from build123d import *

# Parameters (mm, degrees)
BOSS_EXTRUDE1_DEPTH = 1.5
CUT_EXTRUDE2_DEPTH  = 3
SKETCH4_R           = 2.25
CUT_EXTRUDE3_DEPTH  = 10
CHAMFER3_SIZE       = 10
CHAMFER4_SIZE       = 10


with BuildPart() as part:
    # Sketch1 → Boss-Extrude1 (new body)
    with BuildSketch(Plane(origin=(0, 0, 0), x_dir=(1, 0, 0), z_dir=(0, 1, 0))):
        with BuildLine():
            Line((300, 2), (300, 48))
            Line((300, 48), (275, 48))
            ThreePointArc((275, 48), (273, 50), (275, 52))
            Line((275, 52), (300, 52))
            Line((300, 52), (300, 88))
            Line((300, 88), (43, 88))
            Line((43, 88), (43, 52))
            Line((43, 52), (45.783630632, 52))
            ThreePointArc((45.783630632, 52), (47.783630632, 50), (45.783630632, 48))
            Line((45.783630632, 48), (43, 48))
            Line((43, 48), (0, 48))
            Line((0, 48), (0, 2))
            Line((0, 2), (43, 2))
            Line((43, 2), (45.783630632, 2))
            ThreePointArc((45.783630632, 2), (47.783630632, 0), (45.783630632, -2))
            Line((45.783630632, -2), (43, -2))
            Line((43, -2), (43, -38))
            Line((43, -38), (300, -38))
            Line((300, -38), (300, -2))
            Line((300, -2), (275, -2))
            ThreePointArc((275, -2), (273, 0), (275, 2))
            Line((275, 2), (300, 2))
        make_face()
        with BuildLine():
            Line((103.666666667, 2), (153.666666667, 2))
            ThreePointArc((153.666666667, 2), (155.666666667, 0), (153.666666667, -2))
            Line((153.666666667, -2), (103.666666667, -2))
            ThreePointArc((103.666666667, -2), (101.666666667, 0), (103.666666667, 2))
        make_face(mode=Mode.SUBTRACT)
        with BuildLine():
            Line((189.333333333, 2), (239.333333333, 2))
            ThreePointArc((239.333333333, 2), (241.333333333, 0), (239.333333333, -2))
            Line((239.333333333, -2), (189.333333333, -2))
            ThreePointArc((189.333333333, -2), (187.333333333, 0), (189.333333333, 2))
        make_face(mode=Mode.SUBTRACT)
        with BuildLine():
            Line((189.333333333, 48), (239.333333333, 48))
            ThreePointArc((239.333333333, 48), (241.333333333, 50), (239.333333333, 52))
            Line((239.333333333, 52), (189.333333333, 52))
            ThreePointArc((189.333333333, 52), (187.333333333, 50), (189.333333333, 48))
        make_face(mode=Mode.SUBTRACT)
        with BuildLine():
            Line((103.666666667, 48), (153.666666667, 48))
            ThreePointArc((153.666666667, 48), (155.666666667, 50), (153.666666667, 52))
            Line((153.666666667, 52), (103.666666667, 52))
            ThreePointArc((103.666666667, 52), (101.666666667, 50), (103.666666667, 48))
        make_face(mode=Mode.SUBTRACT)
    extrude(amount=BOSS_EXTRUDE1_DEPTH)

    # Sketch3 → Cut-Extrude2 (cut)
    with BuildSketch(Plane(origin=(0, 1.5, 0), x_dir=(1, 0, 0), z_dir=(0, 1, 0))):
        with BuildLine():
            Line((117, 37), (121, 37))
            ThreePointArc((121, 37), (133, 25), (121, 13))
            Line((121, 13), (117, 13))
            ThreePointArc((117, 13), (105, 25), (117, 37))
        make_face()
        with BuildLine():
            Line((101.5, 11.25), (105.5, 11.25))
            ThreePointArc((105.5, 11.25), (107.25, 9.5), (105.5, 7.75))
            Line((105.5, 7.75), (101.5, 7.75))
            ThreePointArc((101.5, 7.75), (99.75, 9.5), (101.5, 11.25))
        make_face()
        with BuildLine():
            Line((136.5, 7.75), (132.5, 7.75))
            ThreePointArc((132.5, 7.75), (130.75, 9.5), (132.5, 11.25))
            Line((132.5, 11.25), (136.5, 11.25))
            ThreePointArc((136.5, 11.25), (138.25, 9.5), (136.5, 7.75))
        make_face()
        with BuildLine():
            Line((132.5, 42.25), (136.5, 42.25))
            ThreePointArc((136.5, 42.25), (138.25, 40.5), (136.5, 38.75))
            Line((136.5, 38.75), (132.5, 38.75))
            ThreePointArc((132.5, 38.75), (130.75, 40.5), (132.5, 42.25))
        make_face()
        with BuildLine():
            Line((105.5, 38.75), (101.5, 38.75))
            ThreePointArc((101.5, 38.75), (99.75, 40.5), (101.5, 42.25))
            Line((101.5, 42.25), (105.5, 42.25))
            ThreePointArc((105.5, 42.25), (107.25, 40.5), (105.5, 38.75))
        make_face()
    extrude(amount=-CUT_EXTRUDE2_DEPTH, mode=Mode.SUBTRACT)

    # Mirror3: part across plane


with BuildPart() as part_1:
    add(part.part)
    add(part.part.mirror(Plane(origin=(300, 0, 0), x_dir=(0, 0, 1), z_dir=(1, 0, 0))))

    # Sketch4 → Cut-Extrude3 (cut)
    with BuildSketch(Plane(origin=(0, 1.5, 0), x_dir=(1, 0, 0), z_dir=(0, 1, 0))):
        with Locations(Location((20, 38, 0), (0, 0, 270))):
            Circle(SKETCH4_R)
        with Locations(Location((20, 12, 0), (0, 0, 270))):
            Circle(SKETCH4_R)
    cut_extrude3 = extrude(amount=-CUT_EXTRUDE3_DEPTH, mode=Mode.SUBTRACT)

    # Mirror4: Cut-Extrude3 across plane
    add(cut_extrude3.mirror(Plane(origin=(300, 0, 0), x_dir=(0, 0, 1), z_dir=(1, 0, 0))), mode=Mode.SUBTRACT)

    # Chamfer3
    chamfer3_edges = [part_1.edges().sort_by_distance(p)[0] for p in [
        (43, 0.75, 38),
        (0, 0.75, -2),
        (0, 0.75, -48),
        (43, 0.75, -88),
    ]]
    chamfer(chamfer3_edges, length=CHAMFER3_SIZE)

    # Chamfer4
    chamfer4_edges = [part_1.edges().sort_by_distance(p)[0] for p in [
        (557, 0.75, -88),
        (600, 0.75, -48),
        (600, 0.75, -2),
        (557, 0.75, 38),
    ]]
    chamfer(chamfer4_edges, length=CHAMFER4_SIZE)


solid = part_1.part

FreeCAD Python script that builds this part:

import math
import FreeCAD as App
import Part
import Sketcher
from FreeCAD import Vector


def edges_at(feature, points):
    """Names of the edges that pass closest to the given points."""
    edges = feature.Shape.Edges
    near = lambda p: min(range(len(edges)), key=lambda i: edges[i].distToShape(Part.Vertex(*p))[0])
    return sorted({f"Edge{near(p) + 1}" for p in points})

doc = App.newDocument("Part")
params = doc.addObject("Spreadsheet::Sheet", "Params")
for row, (alias, value) in enumerate([
    ("sketch1_radius", "2 mm"),
    ("sketch1_width", "25 mm"),
    ("sketch1_width2", "257 mm"),
    ("sketch1_width3", "50 mm"),
    ("sketch1_height", "46 mm"),
    ("pad1_length", "1.5 mm"),
    ("sketch2_radius", "12 mm"),
    ("sketch2_width", "4 mm"),
    ("sketch2_radius2", "1.75 mm"),
    ("pocket1_length", "3 mm"),
    ("sketch3_diameter", "4.5 mm"),
    ("pocket2_length", "10 mm"),
    ("chamfer_size", "10 mm"),
    ("chamfer2_size", "10 mm"),
], start=1):
    params.set(f"A{row}", alias)
    params.set(f"B{row}", "=" + value)
    params.setAlias(f"B{row}", alias)

body = doc.addObject("PartDesign::Body", "Body")

# Sketch on XZ plane
sketch1 = body.newObject("Sketcher::SketchObject", "Sketch")
sketch1.AttachmentSupport = (doc.getObject("XZ_Plane"), [""])
sketch1.MapMode = "FlatFace"
sketch1.addGeometry([
    Part.LineSegment(Vector(300, -2, 0), Vector(300, -48, 0)),  # 0
    Part.LineSegment(Vector(300, -48, 0), Vector(275, -48, 0)),  # 1
    Part.ArcOfCircle(Part.Circle(Vector(275, -50, 0), Vector(0, 0, 1), 2), math.radians(90), math.radians(270)),  # 2
    Part.LineSegment(Vector(275, -52, 0), Vector(300, -52, 0)),  # 3
    Part.LineSegment(Vector(300, -52, 0), Vector(300, -88, 0)),  # 4
    Part.LineSegment(Vector(300, -88, 0), Vector(43, -88, 0)),  # 5
    Part.LineSegment(Vector(43, -88, 0), Vector(43, -52, 0)),  # 6
    Part.LineSegment(Vector(43, -52, 0), Vector(45.8, -52, 0)),  # 7
    Part.ArcOfCircle(Part.Circle(Vector(45.8, -50, 0), Vector(0, 0, 1), 2), math.radians(-90), math.radians(90)),  # 8
    Part.LineSegment(Vector(45.8, -48, 0), Vector(0, -48, 0)),  # 9
    Part.LineSegment(Vector(0, -48, 0), Vector(0, -2, 0)),  # 10
    Part.LineSegment(Vector(0, -2, 0), Vector(45.8, -2, 0)),  # 11
    Part.ArcOfCircle(Part.Circle(Vector(45.8, 0, 0), Vector(0, 0, 1), 2), math.radians(-90), math.radians(90)),  # 12
    Part.LineSegment(Vector(45.8, 2, 0), Vector(43, 2, 0)),  # 13
    Part.LineSegment(Vector(43, 2, 0), Vector(43, 38, 0)),  # 14
    Part.LineSegment(Vector(43, 38, 0), Vector(300, 38, 0)),  # 15
    Part.LineSegment(Vector(300, 38, 0), Vector(300, 2, 0)),  # 16
    Part.LineSegment(Vector(300, 2, 0), Vector(275, 2, 0)),  # 17
    Part.ArcOfCircle(Part.Circle(Vector(275, 0, 0), Vector(0, 0, 1), 2), math.radians(90), math.radians(270)),  # 18
    Part.LineSegment(Vector(275, -2, 0), Vector(300, -2, 0)),  # 19
    Part.ArcOfCircle(Part.Circle(Vector(103.7, 0, 0), Vector(0, 0, 1), 2), math.radians(90), math.radians(270)),  # 20
    Part.LineSegment(Vector(103.7, -2, 0), Vector(153.7, -2, 0)),  # 21
    Part.ArcOfCircle(Part.Circle(Vector(153.7, 0, 0), Vector(0, 0, 1), 2), math.radians(-90), math.radians(90)),  # 22
    Part.LineSegment(Vector(153.7, 2, 0), Vector(103.7, 2, 0)),  # 23
    Part.ArcOfCircle(Part.Circle(Vector(189.3, 0, 0), Vector(0, 0, 1), 2), math.radians(90), math.radians(270)),  # 24
    Part.LineSegment(Vector(189.3, -2, 0), Vector(239.3, -2, 0)),  # 25
    Part.ArcOfCircle(Part.Circle(Vector(239.3, 0, 0), Vector(0, 0, 1), 2), math.radians(-90), math.radians(90)),  # 26
    Part.LineSegment(Vector(239.3, 2, 0), Vector(189.3, 2, 0)),  # 27
    Part.LineSegment(Vector(153.7, -48, 0), Vector(103.7, -48, 0)),  # 28
    Part.ArcOfCircle(Part.Circle(Vector(103.7, -50, 0), Vector(0, 0, 1), 2), math.radians(90), math.radians(270)),  # 29
    Part.LineSegment(Vector(103.7, -52, 0), Vector(153.7, -52, 0)),  # 30
    Part.ArcOfCircle(Part.Circle(Vector(153.7, -50, 0), Vector(0, 0, 1), 2), math.radians(-90), math.radians(90)),  # 31
    Part.LineSegment(Vector(239.3, -48, 0), Vector(189.3, -48, 0)),  # 32
    Part.ArcOfCircle(Part.Circle(Vector(189.3, -50, 0), Vector(0, 0, 1), 2), math.radians(90), math.radians(270)),  # 33
    Part.LineSegment(Vector(189.3, -52, 0), Vector(239.3, -52, 0)),  # 34
    Part.ArcOfCircle(Part.Circle(Vector(239.3, -50, 0), Vector(0, 0, 1), 2), math.radians(-90), math.radians(90)),  # 35
], False)
sketch1.addConstraint([
    Sketcher.Constraint("Coincident", 0, 2, 1, 1),
    Sketcher.Constraint("Tangent", 1, 2, 2, 1),
    Sketcher.Constraint("Tangent", 2, 2, 3, 1),
    Sketcher.Constraint("Coincident", 3, 2, 4, 1),
    Sketcher.Constraint("Coincident", 4, 2, 5, 1),
    Sketcher.Constraint("Coincident", 5, 2, 6, 1),
    Sketcher.Constraint("Coincident", 6, 2, 7, 1),
    Sketcher.Constraint("Tangent", 7, 2, 8, 1),
    Sketcher.Constraint("Tangent", 8, 2, 9, 1),
    Sketcher.Constraint("Coincident", 9, 2, 10, 1),
    Sketcher.Constraint("Coincident", 10, 2, 11, 1),
    Sketcher.Constraint("Tangent", 11, 2, 12, 1),
    Sketcher.Constraint("Tangent", 12, 2, 13, 1),
    Sketcher.Constraint("Coincident", 13, 2, 14, 1),
    Sketcher.Constraint("Coincident", 14, 2, 15, 1),
    Sketcher.Constraint("Coincident", 15, 2, 16, 1),
    Sketcher.Constraint("Coincident", 16, 2, 17, 1),
    Sketcher.Constraint("Tangent", 17, 2, 18, 1),
    Sketcher.Constraint("Tangent", 18, 2, 19, 1),
    Sketcher.Constraint("Coincident", 19, 2, 0, 1),
    Sketcher.Constraint("Tangent", 20, 2, 21, 1),
    Sketcher.Constraint("Tangent", 21, 2, 22, 1),
    Sketcher.Constraint("Tangent", 22, 2, 23, 1),
    Sketcher.Constraint("Tangent", 23, 2, 20, 1),
    Sketcher.Constraint("Tangent", 24, 2, 25, 1),
    Sketcher.Constraint("Tangent", 25, 2, 26, 1),
    Sketcher.Constraint("Tangent", 26, 2, 27, 1),
    Sketcher.Constraint("Tangent", 27, 2, 24, 1),
    Sketcher.Constraint("Tangent", 28, 2, 29, 1),
    Sketcher.Constraint("Tangent", 29, 2, 30, 1),
    Sketcher.Constraint("Tangent", 30, 2, 31, 1),
    Sketcher.Constraint("Tangent", 31, 2, 28, 1),
    Sketcher.Constraint("Tangent", 32, 2, 33, 1),
    Sketcher.Constraint("Tangent", 33, 2, 34, 1),
    Sketcher.Constraint("Tangent", 34, 2, 35, 1),
    Sketcher.Constraint("Tangent", 35, 2, 32, 1),
    Sketcher.Constraint("Vertical", 0),
    Sketcher.Constraint("Horizontal", 1),
    Sketcher.Constraint("Horizontal", 3),
    Sketcher.Constraint("Vertical", 4),
    Sketcher.Constraint("Horizontal", 5),
    Sketcher.Constraint("Vertical", 6),
    Sketcher.Constraint("Horizontal", 7),
    Sketcher.Constraint("Horizontal", 9),
    Sketcher.Constraint("Vertical", 10),
    Sketcher.Constraint("Horizontal", 11),
    Sketcher.Constraint("Horizontal", 13),
    Sketcher.Constraint("Vertical", 14),
    Sketcher.Constraint("Horizontal", 15),
    Sketcher.Constraint("Vertical", 16),
    Sketcher.Constraint("Horizontal", 17),
    Sketcher.Constraint("Horizontal", 19),
    Sketcher.Constraint("Horizontal", 21),
    Sketcher.Constraint("Horizontal", 23),
    Sketcher.Constraint("Horizontal", 25),
    Sketcher.Constraint("Horizontal", 27),
    Sketcher.Constraint("Horizontal", 28),
    Sketcher.Constraint("Horizontal", 30),
    Sketcher.Constraint("Horizontal", 32),
    Sketcher.Constraint("Horizontal", 34),
    Sketcher.Constraint("Equal", 2, 8),
    Sketcher.Constraint("Equal", 8, 12),
    Sketcher.Constraint("Equal", 12, 18),
    Sketcher.Constraint("Equal", 18, 20),
    Sketcher.Constraint("Equal", 22, 24),
    Sketcher.Constraint("Equal", 26, 29),
    Sketcher.Constraint("Equal", 31, 33),
    Sketcher.Constraint("Symmetric", 16, 2, 19, 2, -1),
    Sketcher.Constraint("PointOnObject", 12, 3, -1),
    Sketcher.Constraint("PointOnObject", 20, 3, -1),
    Sketcher.Constraint("PointOnObject", 24, 3, -1),
    Sketcher.Constraint("PointOnObject", 9, 2, -2),
    Sketcher.Constraint("Horizontal", 2, 3, 8, 3),
    Sketcher.Constraint("Horizontal", 8, 3, 29, 3),
    Sketcher.Constraint("Horizontal", 31, 3, 33, 3),
    Sketcher.Constraint("Vertical", 8, 3, 12, 3),
    Sketcher.Constraint("Vertical", 2, 3, 18, 3),
    Sketcher.Constraint("Vertical", 20, 3, 29, 3),
    Sketcher.Constraint("Vertical", 22, 3, 31, 3),
    Sketcher.Constraint("Vertical", 24, 3, 33, 3),
    Sketcher.Constraint("Vertical", 26, 3, 35, 3),
    Sketcher.Constraint("Vertical", 0, 2, 3, 2),
    Sketcher.Constraint("Vertical", 6, 2, 13, 2),
    Sketcher.Constraint("Equal", 23, 25),
    Sketcher.Constraint("Equal", 6, 14),
    Sketcher.Constraint("Radius", 2, 2.0),
    Sketcher.Constraint("DistanceX", 1, 2, 1, 1, 25.0),
    Sketcher.Constraint("DistanceX", 5, 2, 5, 1, 257.0),
    Sketcher.Constraint("DistanceX", 21, 1, 21, 2, 50.0),
    Sketcher.Constraint("DistanceY", 0, 2, 0, 1, 46.0),
    Sketcher.Constraint("DistanceY", 4, 2, 4, 1, 36.0),
    Sketcher.Constraint("DistanceX", -1, 1, 2, 3, 275.0),
    Sketcher.Constraint("DistanceX", 7, 1, 7, 2, 2.783631),
    Sketcher.Constraint("DistanceX", -1, 1, 20, 3, 103.666667),
    Sketcher.Constraint("DistanceX", -1, 1, 24, 3, 189.333333),
])
sketch1.setExpression("Constraints[85]", "Params.sketch1_radius")
sketch1.setExpression("Constraints[86]", "Params.sketch1_width")
sketch1.setExpression("Constraints[87]", "Params.sketch1_width2")
sketch1.setExpression("Constraints[88]", "Params.sketch1_width3")
sketch1.setExpression("Constraints[89]", "Params.sketch1_height")
pad1 = body.newObject("PartDesign::Pad", "Pad")
pad1.Profile = sketch1
pad1.setExpression("Length", "Params.pad1_length")
pad1.Reversed = True

# Sketch on XZ plane
sketch2 = body.newObject("Sketcher::SketchObject", "Sketch001")
sketch2.AttachmentSupport = (doc.getObject("XZ_Plane"), [""])
sketch2.MapMode = "FlatFace"
sketch2.AttachmentOffset = App.Placement(Vector(0, 0, -1.5), App.Rotation())
sketch2.addGeometry([
    Part.LineSegment(Vector(121, -37, 0), Vector(117, -37, 0)),  # 0
    Part.ArcOfCircle(Part.Circle(Vector(117, -25, 0), Vector(0, 0, 1), 12), math.radians(90), math.radians(270)),  # 1
    Part.LineSegment(Vector(117, -13, 0), Vector(121, -13, 0)),  # 2
    Part.ArcOfCircle(Part.Circle(Vector(121, -25, 0), Vector(0, 0, 1), 12), math.radians(-90), math.radians(90)),  # 3
    Part.LineSegment(Vector(105.5, -11.2, 0), Vector(101.5, -11.2, 0)),  # 4
    Part.ArcOfCircle(Part.Circle(Vector(101.5, -9.5, 0), Vector(0, 0, 1), 1.8), math.radians(90), math.radians(270)),  # 5
    Part.LineSegment(Vector(101.5, -7.8, 0), Vector(105.5, -7.8, 0)),  # 6
    Part.ArcOfCircle(Part.Circle(Vector(105.5, -9.5, 0), Vector(0, 0, 1), 1.8), math.radians(-90), math.radians(90)),  # 7
    Part.LineSegment(Vector(132.5, -7.8, 0), Vector(136.5, -7.8, 0)),  # 8
    Part.ArcOfCircle(Part.Circle(Vector(136.5, -9.5, 0), Vector(0, 0, 1), 1.8), math.radians(-90), math.radians(90)),  # 9
    Part.LineSegment(Vector(136.5, -11.2, 0), Vector(132.5, -11.2, 0)),  # 10
    Part.ArcOfCircle(Part.Circle(Vector(132.5, -9.5, 0), Vector(0, 0, 1), 1.8), math.radians(90), math.radians(270)),  # 11
    Part.LineSegment(Vector(136.5, -42.2, 0), Vector(132.5, -42.2, 0)),  # 12
    Part.ArcOfCircle(Part.Circle(Vector(132.5, -40.5, 0), Vector(0, 0, 1), 1.8), math.radians(90), math.radians(270)),  # 13
    Part.LineSegment(Vector(132.5, -38.8, 0), Vector(136.5, -38.8, 0)),  # 14
    Part.ArcOfCircle(Part.Circle(Vector(136.5, -40.5, 0), Vector(0, 0, 1), 1.8), math.radians(-90), math.radians(90)),  # 15
    Part.LineSegment(Vector(101.5, -38.8, 0), Vector(105.5, -38.8, 0)),  # 16
    Part.ArcOfCircle(Part.Circle(Vector(105.5, -40.5, 0), Vector(0, 0, 1), 1.8), math.radians(-90), math.radians(90)),  # 17
    Part.LineSegment(Vector(105.5, -42.2, 0), Vector(101.5, -42.2, 0)),  # 18
    Part.ArcOfCircle(Part.Circle(Vector(101.5, -40.5, 0), Vector(0, 0, 1), 1.8), math.radians(90), math.radians(270)),  # 19
], False)
sketch2.addConstraint([
    Sketcher.Constraint("Tangent", 0, 2, 1, 2),
    Sketcher.Constraint("Tangent", 1, 1, 2, 1),
    Sketcher.Constraint("Tangent", 2, 2, 3, 2),
    Sketcher.Constraint("Tangent", 3, 1, 0, 1),
    Sketcher.Constraint("Tangent", 4, 2, 5, 2),
    Sketcher.Constraint("Tangent", 5, 1, 6, 1),
    Sketcher.Constraint("Tangent", 6, 2, 7, 2),
    Sketcher.Constraint("Tangent", 7, 1, 4, 1),
    Sketcher.Constraint("Tangent", 8, 2, 9, 2),
    Sketcher.Constraint("Tangent", 9, 1, 10, 1),
    Sketcher.Constraint("Tangent", 10, 2, 11, 2),
    Sketcher.Constraint("Tangent", 11, 1, 8, 1),
    Sketcher.Constraint("Tangent", 12, 2, 13, 2),
    Sketcher.Constraint("Tangent", 13, 1, 14, 1),
    Sketcher.Constraint("Tangent", 14, 2, 15, 2),
    Sketcher.Constraint("Tangent", 15, 1, 12, 1),
    Sketcher.Constraint("Tangent", 16, 2, 17, 2),
    Sketcher.Constraint("Tangent", 17, 1, 18, 1),
    Sketcher.Constraint("Tangent", 18, 2, 19, 2),
    Sketcher.Constraint("Tangent", 19, 1, 16, 1),
    Sketcher.Constraint("Horizontal", 0),
    Sketcher.Constraint("Horizontal", 2),
    Sketcher.Constraint("Horizontal", 4),
    Sketcher.Constraint("Horizontal", 6),
    Sketcher.Constraint("Horizontal", 8),
    Sketcher.Constraint("Horizontal", 10),
    Sketcher.Constraint("Horizontal", 12),
    Sketcher.Constraint("Horizontal", 14),
    Sketcher.Constraint("Horizontal", 16),
    Sketcher.Constraint("Horizontal", 18),
    Sketcher.Constraint("Equal", 7, 9),
    Sketcher.Constraint("Equal", 11, 13),
    Sketcher.Constraint("Equal", 15, 17),
    Sketcher.Constraint("Horizontal", 7, 3, 9, 3),
    Sketcher.Constraint("Horizontal", 15, 3, 17, 3),
    Sketcher.Constraint("Vertical", 11, 3, 13, 3),
    Sketcher.Constraint("Vertical", 9, 3, 15, 3),
    Sketcher.Constraint("Vertical", 7, 3, 17, 3),
    Sketcher.Constraint("Vertical", 5, 3, 19, 3),
    Sketcher.Constraint("Equal", 2, 4),
    Sketcher.Constraint("Equal", 6, 8),
    Sketcher.Constraint("Radius", 1, 12.0),
    Sketcher.Constraint("DistanceX", 0, 2, 0, 1, 4.0),
    Sketcher.Constraint("Radius", 5, 1.75),
    Sketcher.Constraint("DistanceX", -1, 1, 1, 3, 117.0),
    Sketcher.Constraint("DistanceY", 1, 3, -1, 1, 25.0),
    Sketcher.Constraint("DistanceX", 7, 3, 9, 3, 31.0),
    Sketcher.Constraint("DistanceY", 13, 3, 11, 3, 31.0),
    Sketcher.Constraint("DistanceX", -1, 1, 5, 3, 101.5),
    Sketcher.Constraint("DistanceY", 5, 3, -1, 1, 9.5),
])
sketch2.setExpression("Constraints[41]", "Params.sketch2_radius")
sketch2.setExpression("Constraints[42]", "Params.sketch2_width")
sketch2.setExpression("Constraints[43]", "Params.sketch2_radius2")
pocket1 = body.newObject("PartDesign::Pocket", "Pocket")
pocket1.Profile = sketch2
pocket1.setExpression("Length", "Params.pocket1_length")
pocket1.Reversed = True
body2 = doc.addObject("PartDesign::Body", "Body001")
doc.recompute()

body2.BaseFeature = body
doc.recompute()

mirroring = doc.addObject("Part::Mirroring", "Mirroring")
mirroring.Source = body
mirroring.Base = Vector(300, 0, 0)
mirroring.Normal = Vector(1, 0, 0)
body3 = doc.addObject("PartDesign::Body", "Body002")
body3.BaseFeature = mirroring
boolean = body2.newObject("PartDesign::Boolean", "Boolean")
boolean.Type = "Fuse"
boolean.addObjects([body3])
doc.recompute()

# Sketch on XZ plane
sketch3 = body2.newObject("Sketcher::SketchObject", "Sketch002")
sketch3.AttachmentSupport = (doc.getObject("XZ_Plane001"), [""])
sketch3.MapMode = "FlatFace"
sketch3.AttachmentOffset = App.Placement(Vector(0, 0, -1.5), App.Rotation())
sketch3.addGeometry([
    Part.Circle(Vector(20, -38, 0), Vector(0, 0, 1), 2.2),
    Part.Circle(Vector(20, -12, 0), Vector(0, 0, 1), 2.2),
], False)
sketch3.addConstraint([
    Sketcher.Constraint("Equal", 0, 1),
    Sketcher.Constraint("Vertical", 0, 3, 1, 3),
    Sketcher.Constraint("Diameter", 0, 4.5),
    Sketcher.Constraint("DistanceX", -1, 1, 0, 3, 20.0),
    Sketcher.Constraint("DistanceY", 0, 3, -1, 1, 38.0),
    Sketcher.Constraint("DistanceY", 1, 3, -1, 1, 12.0),
])
sketch3.setExpression("Constraints[2]", "Params.sketch3_diameter")
pocket2 = body2.newObject("PartDesign::Pocket", "Pocket001")
pocket2.Profile = sketch3
pocket2.setExpression("Length", "Params.pocket2_length")
pocket2.Reversed = True
doc.recompute()

datumplane = body2.newObject("PartDesign::Plane", "DatumPlane")
datumplane.AttachmentSupport = (doc.getObject("YZ_Plane001"), [""])
datumplane.MapMode = "FlatFace"
datumplane.AttachmentOffset = App.Placement(Vector(0, 0, 300), App.Rotation())
mirrored = body2.newObject("PartDesign::Mirrored", "Mirrored")
mirrored.Originals = [pocket2]
mirrored.MirrorPlane = (datumplane, [""])
body2.Tip = mirrored
doc.recompute()

chamfer = body2.newObject("PartDesign::Chamfer", "Chamfer")
chamfer.Base = (mirrored, edges_at(mirrored, [
    (43, 0.75, 38),
    (0, 0.75, -2),
    (0, 0.75, -48),
    (43, 0.75, -88),
]))
chamfer.setExpression("Size", "Params.chamfer_size")
doc.recompute()

chamfer2 = body2.newObject("PartDesign::Chamfer", "Chamfer001")
chamfer2.Base = (chamfer, edges_at(chamfer, [
    (557, 0.75, -88),
    (600, 0.75, -48),
    (600, 0.75, -2),
    (557, 0.75, 38),
]))
chamfer2.setExpression("Size", "Params.chamfer2_size")
mirroring.Visibility = False

doc.recompute()
